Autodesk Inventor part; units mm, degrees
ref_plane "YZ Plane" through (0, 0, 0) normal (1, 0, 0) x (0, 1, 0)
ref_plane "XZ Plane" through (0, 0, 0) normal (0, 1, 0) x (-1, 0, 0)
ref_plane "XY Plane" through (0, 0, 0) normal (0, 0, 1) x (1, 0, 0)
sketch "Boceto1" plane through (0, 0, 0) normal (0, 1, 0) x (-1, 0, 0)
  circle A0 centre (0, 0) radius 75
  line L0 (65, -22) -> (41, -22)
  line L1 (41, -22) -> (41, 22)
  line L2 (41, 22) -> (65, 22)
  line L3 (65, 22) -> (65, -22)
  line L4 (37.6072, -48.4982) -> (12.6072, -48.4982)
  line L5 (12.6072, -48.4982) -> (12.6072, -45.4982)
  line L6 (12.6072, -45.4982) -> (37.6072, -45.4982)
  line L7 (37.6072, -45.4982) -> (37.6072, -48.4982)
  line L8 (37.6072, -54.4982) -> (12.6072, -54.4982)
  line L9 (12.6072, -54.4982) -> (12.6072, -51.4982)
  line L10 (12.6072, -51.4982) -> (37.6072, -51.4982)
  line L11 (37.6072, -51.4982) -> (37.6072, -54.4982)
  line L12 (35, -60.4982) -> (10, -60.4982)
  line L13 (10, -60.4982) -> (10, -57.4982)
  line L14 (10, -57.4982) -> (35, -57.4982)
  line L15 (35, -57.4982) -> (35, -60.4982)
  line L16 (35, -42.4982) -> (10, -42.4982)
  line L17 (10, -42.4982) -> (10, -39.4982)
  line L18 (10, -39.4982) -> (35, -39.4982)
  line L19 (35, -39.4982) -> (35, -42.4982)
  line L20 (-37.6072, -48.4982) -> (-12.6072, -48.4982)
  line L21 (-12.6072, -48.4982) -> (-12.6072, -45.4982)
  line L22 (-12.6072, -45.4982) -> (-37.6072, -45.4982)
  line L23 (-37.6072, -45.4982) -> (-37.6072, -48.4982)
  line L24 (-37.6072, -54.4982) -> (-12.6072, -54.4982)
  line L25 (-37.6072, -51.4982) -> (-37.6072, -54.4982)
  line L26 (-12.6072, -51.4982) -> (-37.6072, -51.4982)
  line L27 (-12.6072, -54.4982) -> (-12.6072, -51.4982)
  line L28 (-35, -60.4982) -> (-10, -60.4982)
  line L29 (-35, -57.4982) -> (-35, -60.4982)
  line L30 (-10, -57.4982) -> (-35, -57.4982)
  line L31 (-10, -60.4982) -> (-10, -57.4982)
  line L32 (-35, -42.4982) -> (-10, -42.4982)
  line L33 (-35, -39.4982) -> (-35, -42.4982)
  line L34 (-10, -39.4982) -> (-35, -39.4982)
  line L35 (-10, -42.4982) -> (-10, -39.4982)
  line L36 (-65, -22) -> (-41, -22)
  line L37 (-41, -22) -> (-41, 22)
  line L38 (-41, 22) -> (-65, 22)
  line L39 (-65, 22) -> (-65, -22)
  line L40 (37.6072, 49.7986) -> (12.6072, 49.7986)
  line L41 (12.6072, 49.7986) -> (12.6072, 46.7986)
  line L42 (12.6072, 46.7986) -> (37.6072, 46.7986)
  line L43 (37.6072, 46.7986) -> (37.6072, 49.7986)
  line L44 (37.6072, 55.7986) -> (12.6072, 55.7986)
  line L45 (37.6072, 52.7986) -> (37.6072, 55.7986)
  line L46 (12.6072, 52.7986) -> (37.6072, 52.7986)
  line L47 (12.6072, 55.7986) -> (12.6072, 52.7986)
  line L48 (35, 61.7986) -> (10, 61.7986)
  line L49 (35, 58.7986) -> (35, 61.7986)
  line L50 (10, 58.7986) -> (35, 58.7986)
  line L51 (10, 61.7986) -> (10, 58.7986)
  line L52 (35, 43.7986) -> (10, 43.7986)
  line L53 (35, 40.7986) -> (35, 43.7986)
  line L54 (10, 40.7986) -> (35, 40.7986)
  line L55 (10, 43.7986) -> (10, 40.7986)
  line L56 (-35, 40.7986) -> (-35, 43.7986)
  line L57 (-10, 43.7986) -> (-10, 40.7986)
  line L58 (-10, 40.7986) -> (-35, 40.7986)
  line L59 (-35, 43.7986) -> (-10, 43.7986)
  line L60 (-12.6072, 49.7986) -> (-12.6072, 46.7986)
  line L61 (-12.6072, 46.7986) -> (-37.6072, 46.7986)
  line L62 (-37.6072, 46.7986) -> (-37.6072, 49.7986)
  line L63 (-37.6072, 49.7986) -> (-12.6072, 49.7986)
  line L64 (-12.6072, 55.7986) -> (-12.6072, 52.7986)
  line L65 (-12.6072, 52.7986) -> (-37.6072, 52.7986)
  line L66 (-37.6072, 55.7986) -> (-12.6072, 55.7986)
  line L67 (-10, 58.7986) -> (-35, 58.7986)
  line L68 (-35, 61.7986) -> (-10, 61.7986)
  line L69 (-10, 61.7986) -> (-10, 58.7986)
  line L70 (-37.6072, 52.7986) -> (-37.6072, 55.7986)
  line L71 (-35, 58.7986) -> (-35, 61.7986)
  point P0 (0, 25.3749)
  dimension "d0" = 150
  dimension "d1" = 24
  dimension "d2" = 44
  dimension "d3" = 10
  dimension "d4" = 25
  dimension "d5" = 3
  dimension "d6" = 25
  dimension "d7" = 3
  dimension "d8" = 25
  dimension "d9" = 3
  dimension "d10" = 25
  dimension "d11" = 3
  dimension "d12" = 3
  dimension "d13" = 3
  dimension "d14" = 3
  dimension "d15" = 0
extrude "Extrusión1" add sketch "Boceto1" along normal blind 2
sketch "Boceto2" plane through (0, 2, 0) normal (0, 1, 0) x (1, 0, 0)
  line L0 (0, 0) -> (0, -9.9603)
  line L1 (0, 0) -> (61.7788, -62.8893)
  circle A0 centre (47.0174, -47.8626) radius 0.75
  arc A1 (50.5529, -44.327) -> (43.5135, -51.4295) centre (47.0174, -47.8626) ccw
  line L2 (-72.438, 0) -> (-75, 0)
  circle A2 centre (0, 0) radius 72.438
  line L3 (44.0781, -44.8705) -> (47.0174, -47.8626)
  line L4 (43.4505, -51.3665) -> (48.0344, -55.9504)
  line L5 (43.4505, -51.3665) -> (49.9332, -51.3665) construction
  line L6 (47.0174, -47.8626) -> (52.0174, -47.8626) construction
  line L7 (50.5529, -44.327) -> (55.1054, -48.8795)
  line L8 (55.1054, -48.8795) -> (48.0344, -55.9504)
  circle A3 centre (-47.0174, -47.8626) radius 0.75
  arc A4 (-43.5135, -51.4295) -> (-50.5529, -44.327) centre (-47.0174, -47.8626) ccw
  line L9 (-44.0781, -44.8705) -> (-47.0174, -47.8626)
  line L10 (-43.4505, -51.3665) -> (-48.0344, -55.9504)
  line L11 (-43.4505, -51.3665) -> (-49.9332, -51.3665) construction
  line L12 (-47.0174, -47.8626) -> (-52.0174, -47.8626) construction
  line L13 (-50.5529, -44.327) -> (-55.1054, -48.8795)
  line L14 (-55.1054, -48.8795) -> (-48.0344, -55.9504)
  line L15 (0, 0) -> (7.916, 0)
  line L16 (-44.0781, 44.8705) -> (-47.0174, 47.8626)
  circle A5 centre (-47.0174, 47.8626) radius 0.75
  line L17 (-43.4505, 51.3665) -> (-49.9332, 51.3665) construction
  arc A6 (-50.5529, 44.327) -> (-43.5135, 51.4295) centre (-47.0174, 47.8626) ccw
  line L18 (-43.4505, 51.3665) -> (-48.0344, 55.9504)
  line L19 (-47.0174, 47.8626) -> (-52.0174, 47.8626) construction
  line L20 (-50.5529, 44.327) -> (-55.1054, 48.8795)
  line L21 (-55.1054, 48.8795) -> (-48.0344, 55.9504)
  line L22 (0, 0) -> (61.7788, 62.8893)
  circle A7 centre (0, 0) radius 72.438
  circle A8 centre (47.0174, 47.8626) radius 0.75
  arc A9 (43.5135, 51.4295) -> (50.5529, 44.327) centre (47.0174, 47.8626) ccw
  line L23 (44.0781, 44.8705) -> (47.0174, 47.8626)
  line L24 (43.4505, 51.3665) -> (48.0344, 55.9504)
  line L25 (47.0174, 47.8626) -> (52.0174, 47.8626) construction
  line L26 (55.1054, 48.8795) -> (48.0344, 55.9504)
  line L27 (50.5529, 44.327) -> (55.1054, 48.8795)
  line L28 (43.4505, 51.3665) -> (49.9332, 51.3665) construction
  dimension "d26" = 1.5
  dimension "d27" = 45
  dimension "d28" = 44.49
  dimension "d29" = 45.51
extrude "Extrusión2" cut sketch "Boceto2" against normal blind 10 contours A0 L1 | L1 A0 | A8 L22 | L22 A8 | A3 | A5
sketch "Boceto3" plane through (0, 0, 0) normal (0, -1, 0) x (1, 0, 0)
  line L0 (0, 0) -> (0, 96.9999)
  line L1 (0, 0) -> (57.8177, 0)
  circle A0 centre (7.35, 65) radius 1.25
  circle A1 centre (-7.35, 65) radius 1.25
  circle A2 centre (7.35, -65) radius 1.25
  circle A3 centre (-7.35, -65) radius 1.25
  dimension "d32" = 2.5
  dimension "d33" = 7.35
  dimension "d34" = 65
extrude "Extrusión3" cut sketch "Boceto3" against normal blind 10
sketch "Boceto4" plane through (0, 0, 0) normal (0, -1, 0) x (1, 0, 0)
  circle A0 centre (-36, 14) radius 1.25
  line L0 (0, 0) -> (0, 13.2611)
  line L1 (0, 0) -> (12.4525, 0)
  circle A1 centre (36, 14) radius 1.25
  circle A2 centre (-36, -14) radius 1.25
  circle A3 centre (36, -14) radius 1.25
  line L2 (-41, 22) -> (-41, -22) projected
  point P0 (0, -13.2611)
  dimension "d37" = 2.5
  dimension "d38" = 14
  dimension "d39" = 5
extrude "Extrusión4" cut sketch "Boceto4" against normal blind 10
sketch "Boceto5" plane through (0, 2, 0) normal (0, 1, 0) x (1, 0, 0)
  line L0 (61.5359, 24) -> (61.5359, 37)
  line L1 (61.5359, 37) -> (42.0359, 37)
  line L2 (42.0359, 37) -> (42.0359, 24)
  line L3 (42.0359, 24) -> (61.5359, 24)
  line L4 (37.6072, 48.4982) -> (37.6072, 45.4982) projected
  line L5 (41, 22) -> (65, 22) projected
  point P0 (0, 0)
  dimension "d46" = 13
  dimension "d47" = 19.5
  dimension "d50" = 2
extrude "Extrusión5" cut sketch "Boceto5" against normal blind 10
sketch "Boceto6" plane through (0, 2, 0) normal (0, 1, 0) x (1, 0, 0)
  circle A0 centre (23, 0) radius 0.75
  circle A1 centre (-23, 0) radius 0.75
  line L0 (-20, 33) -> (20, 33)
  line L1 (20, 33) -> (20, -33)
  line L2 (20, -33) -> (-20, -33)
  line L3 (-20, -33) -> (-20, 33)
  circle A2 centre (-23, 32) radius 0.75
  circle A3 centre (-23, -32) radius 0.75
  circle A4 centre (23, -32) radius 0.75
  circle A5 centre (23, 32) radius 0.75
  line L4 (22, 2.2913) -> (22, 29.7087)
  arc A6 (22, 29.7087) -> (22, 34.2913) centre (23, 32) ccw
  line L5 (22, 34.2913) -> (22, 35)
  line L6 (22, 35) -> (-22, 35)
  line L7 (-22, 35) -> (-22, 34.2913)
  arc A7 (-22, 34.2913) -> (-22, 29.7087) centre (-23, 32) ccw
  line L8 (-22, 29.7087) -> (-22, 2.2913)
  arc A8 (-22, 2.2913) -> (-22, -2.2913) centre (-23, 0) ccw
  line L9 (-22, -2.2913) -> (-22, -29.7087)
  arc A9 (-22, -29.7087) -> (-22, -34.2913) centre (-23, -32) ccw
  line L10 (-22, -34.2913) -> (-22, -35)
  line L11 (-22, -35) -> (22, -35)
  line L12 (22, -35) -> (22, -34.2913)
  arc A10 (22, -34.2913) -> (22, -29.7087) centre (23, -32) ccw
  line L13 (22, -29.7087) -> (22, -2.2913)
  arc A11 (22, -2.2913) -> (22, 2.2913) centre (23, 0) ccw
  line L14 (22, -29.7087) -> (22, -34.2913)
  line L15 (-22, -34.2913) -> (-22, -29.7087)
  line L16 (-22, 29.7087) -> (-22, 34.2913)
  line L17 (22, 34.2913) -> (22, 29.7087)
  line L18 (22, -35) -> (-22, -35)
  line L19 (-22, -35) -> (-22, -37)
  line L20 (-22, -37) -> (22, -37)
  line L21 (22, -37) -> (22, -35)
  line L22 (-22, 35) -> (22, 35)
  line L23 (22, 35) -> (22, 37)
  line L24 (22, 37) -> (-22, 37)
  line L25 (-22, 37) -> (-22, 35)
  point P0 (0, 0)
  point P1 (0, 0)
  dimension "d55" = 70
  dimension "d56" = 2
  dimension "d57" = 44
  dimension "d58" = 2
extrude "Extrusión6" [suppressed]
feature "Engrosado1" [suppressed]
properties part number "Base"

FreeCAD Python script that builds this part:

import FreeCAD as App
import Part
import Sketcher

V = App.Vector

doc = App.newDocument("Part")
body = doc.addObject("PartDesign::Body", "Body")

sketch1 = body.newObject("Sketcher::SketchObject", "Sketch")
sketch1.AttachmentSupport = (doc.getObject("XZ_Plane"), [""])
sketch1.MapMode = "FlatFace"
sketch1.addGeometry([
    Part.Circle(V(0, 0, 0), V(0, 0, 1), 75),
    Part.LineSegment(V(10, -60.5, 0), V(35, -60.5, 0)),
    Part.LineSegment(V(35, -60.5, 0), V(35, -57.5, 0)),
    Part.LineSegment(V(35, -57.5, 0), V(10, -57.5, 0)),
    Part.LineSegment(V(10, -57.5, 0), V(10, -60.5, 0)),
    Part.LineSegment(V(12.6, -54.5, 0), V(37.6, -54.5, 0)),
    Part.LineSegment(V(37.6, -54.5, 0), V(37.6, -51.5, 0)),
    Part.LineSegment(V(37.6, -51.5, 0), V(12.6, -51.5, 0)),
    Part.LineSegment(V(12.6, -51.5, 0), V(12.6, -54.5, 0)),
    Part.LineSegment(V(12.6, -48.5, 0), V(37.6, -48.5, 0)),
    Part.LineSegment(V(37.6, -48.5, 0), V(37.6, -45.5, 0)),
    Part.LineSegment(V(37.6, -45.5, 0), V(12.6, -45.5, 0)),
    Part.LineSegment(V(12.6, -45.5, 0), V(12.6, -48.5, 0)),
    Part.LineSegment(V(10, -42.5, 0), V(35, -42.5, 0)),
    Part.LineSegment(V(35, -42.5, 0), V(35, -39.5, 0)),
    Part.LineSegment(V(35, -39.5, 0), V(10, -39.5, 0)),
    Part.LineSegment(V(10, -39.5, 0), V(10, -42.5, 0)),
    Part.LineSegment(V(-35, -57.5, 0), V(-35, -60.5, 0)),
    Part.LineSegment(V(-35, -60.5, 0), V(-10, -60.5, 0)),
    Part.LineSegment(V(-10, -60.5, 0), V(-10, -57.5, 0)),
    Part.LineSegment(V(-10, -57.5, 0), V(-35, -57.5, 0)),
    Part.LineSegment(V(-37.6, -51.5, 0), V(-37.6, -54.5, 0)),
    Part.LineSegment(V(-37.6, -54.5, 0), V(-12.6, -54.5, 0)),
    Part.LineSegment(V(-12.6, -54.5, 0), V(-12.6, -51.5, 0)),
    Part.LineSegment(V(-12.6, -51.5, 0), V(-37.6, -51.5, 0)),
    Part.LineSegment(V(-37.6, -45.5, 0), V(-37.6, -48.5, 0)),
    Part.LineSegment(V(-37.6, -48.5, 0), V(-12.6, -48.5, 0)),
    Part.LineSegment(V(-12.6, -48.5, 0), V(-12.6, -45.5, 0)),
    Part.LineSegment(V(-12.6, -45.5, 0), V(-37.6, -45.5, 0)),
    Part.LineSegment(V(-35, -39.5, 0), V(-35, -42.5, 0)),
    Part.LineSegment(V(-35, -42.5, 0), V(-10, -42.5, 0)),
    Part.LineSegment(V(-10, -42.5, 0), V(-10, -39.5, 0)),
    Part.LineSegment(V(-10, -39.5, 0), V(-35, -39.5, 0)),
    Part.LineSegment(V(41, -22, 0), V(65, -22, 0)),
    Part.LineSegment(V(65, -22, 0), V(65, 22, 0)),
    Part.LineSegment(V(65, 22, 0), V(41, 22, 0)),
    Part.LineSegment(V(41, 22, 0), V(41, -22, 0)),
    Part.LineSegment(V(10, 40.8, 0), V(35, 40.8, 0)),
    Part.LineSegment(V(35, 40.8, 0), V(35, 43.8, 0)),
    Part.LineSegment(V(35, 43.8, 0), V(10, 43.8, 0)),
    Part.LineSegment(V(10, 43.8, 0), V(10, 40.8, 0)),
    Part.LineSegment(V(37.6, 49.8, 0), V(12.6, 49.8, 0)),
    Part.LineSegment(V(12.6, 49.8, 0), V(12.6, 46.8, 0)),
    Part.LineSegment(V(12.6, 46.8, 0), V(37.6, 46.8, 0)),
    Part.LineSegment(V(37.6, 46.8, 0), V(37.6, 49.8, 0)),
    Part.LineSegment(V(37.6, 55.8, 0), V(12.6, 55.8, 0)),
    Part.LineSegment(V(12.6, 55.8, 0), V(12.6, 52.8, 0)),
    Part.LineSegment(V(12.6, 52.8, 0), V(37.6, 52.8, 0)),
    Part.LineSegment(V(37.6, 52.8, 0), V(37.6, 55.8, 0)),
    Part.LineSegment(V(10, 61.8, 0), V(10, 58.8, 0)),
    Part.LineSegment(V(10, 58.8, 0), V(35, 58.8, 0)),
    Part.LineSegment(V(35, 58.8, 0), V(35, 61.8, 0)),
    Part.LineSegment(V(35, 61.8, 0), V(10, 61.8, 0)),
    Part.LineSegment(V(-65, 22, 0), V(-65, -22, 0)),
    Part.LineSegment(V(-65, -22, 0), V(-41, -22, 0)),
    Part.LineSegment(V(-41, -22, 0), V(-41, 22, 0)),
    Part.LineSegment(V(-41, 22, 0), V(-65, 22, 0)),
    Part.LineSegment(V(-10, 43.8, 0), V(-35, 43.8, 0)),
    Part.LineSegment(V(-35, 43.8, 0), V(-35, 40.8, 0)),
    Part.LineSegment(V(-35, 40.8, 0), V(-10, 40.8, 0)),
    Part.LineSegment(V(-10, 40.8, 0), V(-10, 43.8, 0)),
    Part.LineSegment(V(-12.6, 49.8, 0), V(-37.6, 49.8, 0)),
    Part.LineSegment(V(-37.6, 49.8, 0), V(-37.6, 46.8, 0)),
    Part.LineSegment(V(-37.6, 46.8, 0), V(-12.6, 46.8, 0)),
    Part.LineSegment(V(-12.6, 46.8, 0), V(-12.6, 49.8, 0)),
    Part.LineSegment(V(-12.6, 55.8, 0), V(-37.6, 55.8, 0)),
    Part.LineSegment(V(-37.6, 55.8, 0), V(-37.6, 52.8, 0)),
    Part.LineSegment(V(-37.6, 52.8, 0), V(-12.6, 52.8, 0)),
    Part.LineSegment(V(-12.6, 52.8, 0), V(-12.6, 55.8, 0)),
    Part.LineSegment(V(-10, 61.8, 0), V(-35, 61.8, 0)),
    Part.LineSegment(V(-35, 61.8, 0), V(-35, 58.8, 0)),
    Part.LineSegment(V(-35, 58.8, 0), V(-10, 58.8, 0)),
    Part.LineSegment(V(-10, 58.8, 0), V(-10, 61.8, 0)),
], False)
sketch1.addConstraint([
    Sketcher.Constraint("Coincident", 1, 2, 2, 1),
    Sketcher.Constraint("Coincident", 2, 2, 3, 1),
    Sketcher.Constraint("Coincident", 3, 2, 4, 1),
    Sketcher.Constraint("Coincident", 4, 2, 1, 1),
    Sketcher.Constraint("Coincident", 5, 2, 6, 1),
    Sketcher.Constraint("Coincident", 6, 2, 7, 1),
    Sketcher.Constraint("Coincident", 7, 2, 8, 1),
    Sketcher.Constraint("Coincident", 8, 2, 5, 1),
    Sketcher.Constraint("Coincident", 9, 2, 10, 1),
    Sketcher.Constraint("Coincident", 10, 2, 11, 1),
    Sketcher.Constraint("Coincident", 11, 2, 12, 1),
    Sketcher.Constraint("Coincident", 12, 2, 9, 1),
    Sketcher.Constraint("Coincident", 13, 2, 14, 1),
    Sketcher.Constraint("Coincident", 14, 2, 15, 1),
    Sketcher.Constraint("Coincident", 15, 2, 16, 1),
    Sketcher.Constraint("Coincident", 16, 2, 13, 1),
    Sketcher.Constraint("Coincident", 17, 2, 18, 1),
    Sketcher.Constraint("Coincident", 18, 2, 19, 1),
    Sketcher.Constraint("Coincident", 19, 2, 20, 1),
    Sketcher.Constraint("Coincident", 20, 2, 17, 1),
    Sketcher.Constraint("Coincident", 21, 2, 22, 1),
    Sketcher.Constraint("Coincident", 22, 2, 23, 1),
    Sketcher.Constraint("Coincident", 23, 2, 24, 1),
    Sketcher.Constraint("Coincident", 24, 2, 21, 1),
    Sketcher.Constraint("Coincident", 25, 2, 26, 1),
    Sketcher.Constraint("Coincident", 26, 2, 27, 1),
    Sketcher.Constraint("Coincident", 27, 2, 28, 1),
    Sketcher.Constraint("Coincident", 28, 2, 25, 1),
    Sketcher.Constraint("Coincident", 29, 2, 30, 1),
    Sketcher.Constraint("Coincident", 30, 2, 31, 1),
    Sketcher.Constraint("Coincident", 31, 2, 32, 1),
    Sketcher.Constraint("Coincident", 32, 2, 29, 1),
    Sketcher.Constraint("Coincident", 33, 2, 34, 1),
    Sketcher.Constraint("Coincident", 34, 2, 35, 1),
    Sketcher.Constraint("Coincident", 35, 2, 36, 1),
    Sketcher.Constraint("Coincident", 36, 2, 33, 1),
    Sketcher.Constraint("Coincident", 37, 2, 38, 1),
    Sketcher.Constraint("Coincident", 38, 2, 39, 1),
    Sketcher.Constraint("Coincident", 39, 2, 40, 1),
    Sketcher.Constraint("Coincident", 40, 2, 37, 1),
    Sketcher.Constraint("Coincident", 41, 2, 42, 1),
    Sketcher.Constraint("Coincident", 42, 2, 43, 1),
    Sketcher.Constraint("Coincident", 43, 2, 44, 1),
    Sketcher.Constraint("Coincident", 44, 2, 41, 1),
    Sketcher.Constraint("Coincident", 45, 2, 46, 1),
    Sketcher.Constraint("Coincident", 46, 2, 47, 1),
    Sketcher.Constraint("Coincident", 47, 2, 48, 1),
    Sketcher.Constraint("Coincident", 48, 2, 45, 1),
    Sketcher.Constraint("Coincident", 49, 2, 50, 1),
    Sketcher.Constraint("Coincident", 50, 2, 51, 1),
    Sketcher.Constraint("Coincident", 51, 2, 52, 1),
    Sketcher.Constraint("Coincident", 52, 2, 49, 1),
    Sketcher.Constraint("Coincident", 53, 2, 54, 1),
    Sketcher.Constraint("Coincident", 54, 2, 55, 1),
    Sketcher.Constraint("Coincident", 55, 2, 56, 1),
    Sketcher.Constraint("Coincident", 56, 2, 53, 1),
    Sketcher.Constraint("Coincident", 57, 2, 58, 1),
    Sketcher.Constraint("Coincident", 58, 2, 59, 1),
    Sketcher.Constraint("Coincident", 59, 2, 60, 1),
    Sketcher.Constraint("Coincident", 60, 2, 57, 1),
    Sketcher.Constraint("Coincident", 61, 2, 62, 1),
    Sketcher.Constraint("Coincident", 62, 2, 63, 1),
    Sketcher.Constraint("Coincident", 63, 2, 64, 1),
    Sketcher.Constraint("Coincident", 64, 2, 61, 1),
    Sketcher.Constraint("Coincident", 65, 2, 66, 1),
    Sketcher.Constraint("Coincident", 66, 2, 67, 1),
    Sketcher.Constraint("Coincident", 67, 2, 68, 1),
    Sketcher.Constraint("Coincident", 68, 2, 65, 1),
    Sketcher.Constraint("Coincident", 69, 2, 70, 1),
    Sketcher.Constraint("Coincident", 70, 2, 71, 1),
    Sketcher.Constraint("Coincident", 71, 2, 72, 1),
    Sketcher.Constraint("Coincident", 72, 2, 69, 1),
    Sketcher.Constraint("Horizontal", 1),
    Sketcher.Constraint("Vertical", 2),
    Sketcher.Constraint("Horizontal", 3),
    Sketcher.Constraint("Vertical", 4),
    Sketcher.Constraint("Horizontal", 5),
    Sketcher.Constraint("Vertical", 6),
    Sketcher.Constraint("Horizontal", 7),
    Sketcher.Constraint("Vertical", 8),
    Sketcher.Constraint("Horizontal", 9),
    Sketcher.Constraint("Vertical", 10),
    Sketcher.Constraint("Horizontal", 11),
    Sketcher.Constraint("Vertical", 12),
    Sketcher.Constraint("Horizontal", 13),
    Sketcher.Constraint("Vertical", 14),
    Sketcher.Constraint("Horizontal", 15),
    Sketcher.Constraint("Vertical", 16),
    Sketcher.Constraint("Vertical", 17),
    Sketcher.Constraint("Horizontal", 18),
    Sketcher.Constraint("Vertical", 19),
    Sketcher.Constraint("Horizontal", 20),
    Sketcher.Constraint("Vertical", 21),
    Sketcher.Constraint("Horizontal", 22),
    Sketcher.Constraint("Vertical", 23),
    Sketcher.Constraint("Horizontal", 24),
    Sketcher.Constraint("Vertical", 25),
    Sketcher.Constraint("Horizontal", 26),
    Sketcher.Constraint("Vertical", 27),
    Sketcher.Constraint("Horizontal", 28),
    Sketcher.Constraint("Vertical", 29),
    Sketcher.Constraint("Horizontal", 30),
    Sketcher.Constraint("Vertical", 31),
    Sketcher.Constraint("Horizontal", 32),
    Sketcher.Constraint("Horizontal", 33),
    Sketcher.Constraint("Vertical", 34),
    Sketcher.Constraint("Horizontal", 35),
    Sketcher.Constraint("Vertical", 36),
    Sketcher.Constraint("Horizontal", 37),
    Sketcher.Constraint("Vertical", 38),
    Sketcher.Constraint("Horizontal", 39),
    Sketcher.Constraint("Vertical", 40),
    Sketcher.Constraint("Horizontal", 41),
    Sketcher.Constraint("Vertical", 42),
    Sketcher.Constraint("Horizontal", 43),
    Sketcher.Constraint("Vertical", 44),
    Sketcher.Constraint("Horizontal", 45),
    Sketcher.Constraint("Vertical", 46),
    Sketcher.Constraint("Horizontal", 47),
    Sketcher.Constraint("Vertical", 48),
    Sketcher.Constraint("Vertical", 49),
    Sketcher.Constraint("Horizontal", 50),
    Sketcher.Constraint("Vertical", 51),
    Sketcher.Constraint("Horizontal", 52),
    Sketcher.Constraint("Vertical", 53),
    Sketcher.Constraint("Horizontal", 54),
    Sketcher.Constraint("Vertical", 55),
    Sketcher.Constraint("Horizontal", 56),
    Sketcher.Constraint("Horizontal", 57),
    Sketcher.Constraint("Vertical", 58),
    Sketcher.Constraint("Horizontal", 59),
    Sketcher.Constraint("Vertical", 60),
    Sketcher.Constraint("Horizontal", 61),
    Sketcher.Constraint("Vertical", 62),
    Sketcher.Constraint("Horizontal", 63),
    Sketcher.Constraint("Vertical", 64),
    Sketcher.Constraint("Horizontal", 65),
    Sketcher.Constraint("Vertical", 66),
    Sketcher.Constraint("Horizontal", 67),
    Sketcher.Constraint("Vertical", 68),
    Sketcher.Constraint("Horizontal", 69),
    Sketcher.Constraint("Vertical", 70),
    Sketcher.Constraint("Horizontal", 71),
    Sketcher.Constraint("Vertical", 72),
    Sketcher.Constraint("Coincident", 0, 3, -1, 1),
    Sketcher.Constraint("Symmetric", 34, 2, 53, 2, -1, 1),
    Sketcher.Constraint("Symmetric", 36, 2, 55, 2, -1, 1),
    Sketcher.Constraint("Symmetric", 1, 2, 17, 2, -2),
    Sketcher.Constraint("Symmetric", 3, 2, 19, 2, -2),
    Sketcher.Constraint("Symmetric", 5, 2, 21, 2, -2),
    Sketcher.Constraint("Symmetric", 7, 2, 23, 2, -2),
    Sketcher.Constraint("Symmetric", 9, 2, 25, 2, -2),
    Sketcher.Constraint("Symmetric", 11, 2, 27, 2, -2),
    Sketcher.Constraint("Symmetric", 13, 2, 29, 2, -2),
    Sketcher.Constraint("Symmetric", 15, 2, 31, 2, -2),
    Sketcher.Constraint("Symmetric", 38, 2, 57, 2, -2),
    Sketcher.Constraint("Symmetric", 40, 2, 59, 2, -2),
    Sketcher.Constraint("Symmetric", 44, 2, 61, 2, -2),
    Sketcher.Constraint("Symmetric", 42, 2, 63, 2, -2),
    Sketcher.Constraint("Symmetric", 48, 2, 65, 2, -2),
    Sketcher.Constraint("Symmetric", 46, 2, 67, 2, -2),
    Sketcher.Constraint("Symmetric", 51, 2, 69, 2, -2),
    Sketcher.Constraint("Symmetric", 49, 2, 71, 2, -2),
    Sketcher.Constraint("Horizontal", 36, 2, 53, 2),
    Sketcher.Constraint("Vertical", 6, 2, 9, 2),
    Sketcher.Constraint("Vertical", 8, 2, 11, 2),
    Sketcher.Constraint("Vertical", 2, 2, 13, 2),
    Sketcher.Constraint("Vertical", 4, 2, 15, 2),
    Sketcher.Constraint("Vertical", 14, 2, 37, 2),
    Sketcher.Constraint("Vertical", 16, 2, 39, 2),
    Sketcher.Constraint("Vertical", 12, 2, 41, 2),
    Sketcher.Constraint("Vertical", 10, 2, 43, 2),
    Sketcher.Constraint("Vertical", 42, 2, 45, 2),
    Sketcher.Constraint("Vertical", 44, 2, 47, 2),
    Sketcher.Constraint("Vertical", 40, 2, 49, 2),
    Sketcher.Constraint("Vertical", 38, 2, 50, 2),
    Sketcher.Constraint("Equal", 3, 5),
    Sketcher.Constraint("Equal", 4, 6),
    Sketcher.Constraint("Equal", 8, 10),
    Sketcher.Constraint("Equal", 12, 14),
    Sketcher.Constraint("Equal", 31, 38),
    Sketcher.Constraint("Equal", 40, 42),
    Sketcher.Constraint("Equal", 44, 46),
    Sketcher.Constraint("Equal", 48, 49),
    Sketcher.Constraint("Diameter", 0, 150.0),
    Sketcher.Constraint("DistanceX", 1, 1, 1, 2, 25.0),
    Sketcher.Constraint("DistanceX", 33, 1, 33, 2, 24.0),
    Sketcher.Constraint("DistanceY", 2, 1, 2, 2, 3.0),
    Sketcher.Constraint("DistanceY", 34, 1, 34, 2, 44.0),
    Sketcher.Constraint("DistanceX", -1, 1, 3, 2, 10.0),
    Sketcher.Constraint("DistanceX", -1, 1, 33, 2, 65.0),
    Sketcher.Constraint("DistanceY", 1, 2, -1, 1, 60.4982),
    Sketcher.Constraint("DistanceX", -1, 1, 5, 2, 37.6072),
    Sketcher.Constraint("DistanceY", 5, 2, -1, 1, 54.4982),
    Sketcher.Constraint("DistanceY", 9, 2, -1, 1, 48.4982),
    Sketcher.Constraint("DistanceY", 13, 2, -1, 1, 42.4982),
    Sketcher.Constraint("DistanceY", -1, 1, 37, 2, 40.7986),
    Sketcher.Constraint("DistanceY", -1, 1, 41, 2, 49.7986),
    Sketcher.Constraint("DistanceY", -1, 1, 45, 2, 55.7986),
    Sketcher.Constraint("DistanceY", -1, 1, 49, 2, 58.7986),
])
pad1 = body.newObject("PartDesign::Pad", "Pad")
pad1.Profile = sketch1
pad1.Length = 2
pad1.Reversed = True

sketch2 = body.newObject("Sketcher::SketchObject", "Sketch001")
sketch2.AttachmentSupport = (doc.getObject("XZ_Plane"), [""])
sketch2.MapMode = "FlatFace"
sketch2.AttachmentOffset = App.Placement(V(0, 0, -2), App.Rotation())
sketch2.addGeometry([
    Part.Circle(V(47, 47.9, 0), V(0, 0, 1), 0.8),
    Part.Circle(V(47, -47.9, 0), V(0, 0, 1), 0.8),
    Part.Circle(V(-47, 47.9, 0), V(0, 0, 1), 0.8),
    Part.Circle(V(-47, -47.9, 0), V(0, 0, 1), 0.8),
], False)
sketch2.addConstraint([
    Sketcher.Constraint("Equal", 0, 1),
    Sketcher.Constraint("Equal", 1, 2),
    Sketcher.Constraint("Equal", 2, 3),
    Sketcher.Constraint("Symmetric", 1, 3, 2, 3, -1, 1),
    Sketcher.Constraint("Symmetric", 0, 3, 3, 3, -1, 1),
    Sketcher.Constraint("Symmetric", 0, 3, 2, 3, -2),
    Sketcher.Constraint("Diameter", 0, 1.5),
    Sketcher.Constraint("DistanceX", -1, 1, 0, 3, 47.0174),
    Sketcher.Constraint("DistanceY", -1, 1, 0, 3, 47.8626),
])
pocket1 = body.newObject("PartDesign::Pocket", "Pocket")
pocket1.Profile = sketch2
pocket1.Length = 10
pocket1.Reversed = True

sketch3 = body.newObject("Sketcher::SketchObject", "Sketch002")
sketch3.AttachmentSupport = (doc.getObject("XZ_Plane"), [""])
sketch3.MapMode = "FlatFace"
sketch3.addGeometry([
    Part.Circle(V(7.3, 65, 0), V(0, 0, 1), 1.2),
    Part.Circle(V(-7.3, 65, 0), V(0, 0, 1), 1.2),
    Part.Circle(V(7.3, -65, 0), V(0, 0, 1), 1.2),
    Part.Circle(V(-7.3, -65, 0), V(0, 0, 1), 1.2),
], False)
sketch3.addConstraint([
    Sketcher.Constraint("Equal", 0, 1),
    Sketcher.Constraint("Equal", 1, 2),
    Sketcher.Constraint("Equal", 2, 3),
    Sketcher.Constraint("Symmetric", 1, 3, 2, 3, -1, 1),
    Sketcher.Constraint("Symmetric", 0, 3, 3, 3, -1, 1),
    Sketcher.Constraint("Symmetric", 0, 3, 1, 3, -2),
    Sketcher.Constraint("Diameter", 0, 2.5),
    Sketcher.Constraint("DistanceY", -1, 1, 0, 3, 65.0),
    Sketcher.Constraint("DistanceX", -1, 1, 0, 3, 7.35),
])
pocket2 = body.newObject("PartDesign::Pocket", "Pocket001")
pocket2.Profile = sketch3
pocket2.Length = 10

sketch4 = body.newObject("Sketcher::SketchObject", "Sketch003")
sketch4.AttachmentSupport = (doc.getObject("XZ_Plane"), [""])
sketch4.MapMode = "FlatFace"
sketch4.addGeometry([
    Part.Circle(V(-36, 14, 0), V(0, 0, 1), 1.2),
    Part.Circle(V(36, 14, 0), V(0, 0, 1), 1.2),
    Part.Circle(V(-36, -14, 0), V(0, 0, 1), 1.2),
    Part.Circle(V(36, -14, 0), V(0, 0, 1), 1.2),
], False)
sketch4.addConstraint([
    Sketcher.Constraint("Equal", 0, 1),
    Sketcher.Constraint("Equal", 1, 2),
    Sketcher.Constraint("Equal", 2, 3),
    Sketcher.Constraint("Symmetric", 1, 3, 2, 3, -1, 1),
    Sketcher.Constraint("Symmetric", 0, 3, 3, 3, -1, 1),
    Sketcher.Constraint("Symmetric", 0, 3, 1, 3, -2),
    Sketcher.Constraint("Diameter", 0, 2.5),
    Sketcher.Constraint("DistanceY", -1, 1, 0, 3, 14.0),
    Sketcher.Constraint("DistanceX", 0, 3, -1, 1, 36.0),
])
pocket3 = body.newObject("PartDesign::Pocket", "Pocket002")
pocket3.Profile = sketch4
pocket3.Length = 10

sketch5 = body.newObject("Sketcher::SketchObject", "Sketch004")
sketch5.AttachmentSupport = (doc.getObject("XZ_Plane"), [""])
sketch5.MapMode = "FlatFace"
sketch5.AttachmentOffset = App.Placement(V(0, 0, -2), App.Rotation())
sketch5.addGeometry([
    Part.LineSegment(V(42, -24, 0), V(62, -24, 0)),
    Part.LineSegment(V(62, -24, 0), V(62, -37, 0)),
    Part.LineSegment(V(62, -37, 0), V(42, -37, 0)),
    Part.LineSegment(V(42, -37, 0), V(42, -24, 0)),
], False)
sketch5.addConstraint([
    Sketcher.Constraint("Coincident", 0, 2, 1, 1),
    Sketcher.Constraint("Coincident", 1, 2, 2, 1),
    Sketcher.Constraint("Coincident", 2, 2, 3, 1),
    Sketcher.Constraint("Coincident", 3, 2, 0, 1),
    Sketcher.Constraint("Horizontal", 0),
    Sketcher.Constraint("Vertical", 1),
    Sketcher.Constraint("Horizontal", 2),
    Sketcher.Constraint("Vertical", 3),
    Sketcher.Constraint("DistanceY", 1, 2, 1, 1, 13.0),
    Sketcher.Constraint("DistanceX", 0, 1, 0, 2, 19.5),
    Sketcher.Constraint("DistanceY", 0, 2, -1, 1, 24.0),
    Sketcher.Constraint("DistanceX", -1, 1, 0, 2, 61.536),
])
pocket4 = body.newObject("PartDesign::Pocket", "Pocket003")
pocket4.Profile = sketch5
pocket4.Length = 10
pocket4.Reversed = True

doc.recompute()
